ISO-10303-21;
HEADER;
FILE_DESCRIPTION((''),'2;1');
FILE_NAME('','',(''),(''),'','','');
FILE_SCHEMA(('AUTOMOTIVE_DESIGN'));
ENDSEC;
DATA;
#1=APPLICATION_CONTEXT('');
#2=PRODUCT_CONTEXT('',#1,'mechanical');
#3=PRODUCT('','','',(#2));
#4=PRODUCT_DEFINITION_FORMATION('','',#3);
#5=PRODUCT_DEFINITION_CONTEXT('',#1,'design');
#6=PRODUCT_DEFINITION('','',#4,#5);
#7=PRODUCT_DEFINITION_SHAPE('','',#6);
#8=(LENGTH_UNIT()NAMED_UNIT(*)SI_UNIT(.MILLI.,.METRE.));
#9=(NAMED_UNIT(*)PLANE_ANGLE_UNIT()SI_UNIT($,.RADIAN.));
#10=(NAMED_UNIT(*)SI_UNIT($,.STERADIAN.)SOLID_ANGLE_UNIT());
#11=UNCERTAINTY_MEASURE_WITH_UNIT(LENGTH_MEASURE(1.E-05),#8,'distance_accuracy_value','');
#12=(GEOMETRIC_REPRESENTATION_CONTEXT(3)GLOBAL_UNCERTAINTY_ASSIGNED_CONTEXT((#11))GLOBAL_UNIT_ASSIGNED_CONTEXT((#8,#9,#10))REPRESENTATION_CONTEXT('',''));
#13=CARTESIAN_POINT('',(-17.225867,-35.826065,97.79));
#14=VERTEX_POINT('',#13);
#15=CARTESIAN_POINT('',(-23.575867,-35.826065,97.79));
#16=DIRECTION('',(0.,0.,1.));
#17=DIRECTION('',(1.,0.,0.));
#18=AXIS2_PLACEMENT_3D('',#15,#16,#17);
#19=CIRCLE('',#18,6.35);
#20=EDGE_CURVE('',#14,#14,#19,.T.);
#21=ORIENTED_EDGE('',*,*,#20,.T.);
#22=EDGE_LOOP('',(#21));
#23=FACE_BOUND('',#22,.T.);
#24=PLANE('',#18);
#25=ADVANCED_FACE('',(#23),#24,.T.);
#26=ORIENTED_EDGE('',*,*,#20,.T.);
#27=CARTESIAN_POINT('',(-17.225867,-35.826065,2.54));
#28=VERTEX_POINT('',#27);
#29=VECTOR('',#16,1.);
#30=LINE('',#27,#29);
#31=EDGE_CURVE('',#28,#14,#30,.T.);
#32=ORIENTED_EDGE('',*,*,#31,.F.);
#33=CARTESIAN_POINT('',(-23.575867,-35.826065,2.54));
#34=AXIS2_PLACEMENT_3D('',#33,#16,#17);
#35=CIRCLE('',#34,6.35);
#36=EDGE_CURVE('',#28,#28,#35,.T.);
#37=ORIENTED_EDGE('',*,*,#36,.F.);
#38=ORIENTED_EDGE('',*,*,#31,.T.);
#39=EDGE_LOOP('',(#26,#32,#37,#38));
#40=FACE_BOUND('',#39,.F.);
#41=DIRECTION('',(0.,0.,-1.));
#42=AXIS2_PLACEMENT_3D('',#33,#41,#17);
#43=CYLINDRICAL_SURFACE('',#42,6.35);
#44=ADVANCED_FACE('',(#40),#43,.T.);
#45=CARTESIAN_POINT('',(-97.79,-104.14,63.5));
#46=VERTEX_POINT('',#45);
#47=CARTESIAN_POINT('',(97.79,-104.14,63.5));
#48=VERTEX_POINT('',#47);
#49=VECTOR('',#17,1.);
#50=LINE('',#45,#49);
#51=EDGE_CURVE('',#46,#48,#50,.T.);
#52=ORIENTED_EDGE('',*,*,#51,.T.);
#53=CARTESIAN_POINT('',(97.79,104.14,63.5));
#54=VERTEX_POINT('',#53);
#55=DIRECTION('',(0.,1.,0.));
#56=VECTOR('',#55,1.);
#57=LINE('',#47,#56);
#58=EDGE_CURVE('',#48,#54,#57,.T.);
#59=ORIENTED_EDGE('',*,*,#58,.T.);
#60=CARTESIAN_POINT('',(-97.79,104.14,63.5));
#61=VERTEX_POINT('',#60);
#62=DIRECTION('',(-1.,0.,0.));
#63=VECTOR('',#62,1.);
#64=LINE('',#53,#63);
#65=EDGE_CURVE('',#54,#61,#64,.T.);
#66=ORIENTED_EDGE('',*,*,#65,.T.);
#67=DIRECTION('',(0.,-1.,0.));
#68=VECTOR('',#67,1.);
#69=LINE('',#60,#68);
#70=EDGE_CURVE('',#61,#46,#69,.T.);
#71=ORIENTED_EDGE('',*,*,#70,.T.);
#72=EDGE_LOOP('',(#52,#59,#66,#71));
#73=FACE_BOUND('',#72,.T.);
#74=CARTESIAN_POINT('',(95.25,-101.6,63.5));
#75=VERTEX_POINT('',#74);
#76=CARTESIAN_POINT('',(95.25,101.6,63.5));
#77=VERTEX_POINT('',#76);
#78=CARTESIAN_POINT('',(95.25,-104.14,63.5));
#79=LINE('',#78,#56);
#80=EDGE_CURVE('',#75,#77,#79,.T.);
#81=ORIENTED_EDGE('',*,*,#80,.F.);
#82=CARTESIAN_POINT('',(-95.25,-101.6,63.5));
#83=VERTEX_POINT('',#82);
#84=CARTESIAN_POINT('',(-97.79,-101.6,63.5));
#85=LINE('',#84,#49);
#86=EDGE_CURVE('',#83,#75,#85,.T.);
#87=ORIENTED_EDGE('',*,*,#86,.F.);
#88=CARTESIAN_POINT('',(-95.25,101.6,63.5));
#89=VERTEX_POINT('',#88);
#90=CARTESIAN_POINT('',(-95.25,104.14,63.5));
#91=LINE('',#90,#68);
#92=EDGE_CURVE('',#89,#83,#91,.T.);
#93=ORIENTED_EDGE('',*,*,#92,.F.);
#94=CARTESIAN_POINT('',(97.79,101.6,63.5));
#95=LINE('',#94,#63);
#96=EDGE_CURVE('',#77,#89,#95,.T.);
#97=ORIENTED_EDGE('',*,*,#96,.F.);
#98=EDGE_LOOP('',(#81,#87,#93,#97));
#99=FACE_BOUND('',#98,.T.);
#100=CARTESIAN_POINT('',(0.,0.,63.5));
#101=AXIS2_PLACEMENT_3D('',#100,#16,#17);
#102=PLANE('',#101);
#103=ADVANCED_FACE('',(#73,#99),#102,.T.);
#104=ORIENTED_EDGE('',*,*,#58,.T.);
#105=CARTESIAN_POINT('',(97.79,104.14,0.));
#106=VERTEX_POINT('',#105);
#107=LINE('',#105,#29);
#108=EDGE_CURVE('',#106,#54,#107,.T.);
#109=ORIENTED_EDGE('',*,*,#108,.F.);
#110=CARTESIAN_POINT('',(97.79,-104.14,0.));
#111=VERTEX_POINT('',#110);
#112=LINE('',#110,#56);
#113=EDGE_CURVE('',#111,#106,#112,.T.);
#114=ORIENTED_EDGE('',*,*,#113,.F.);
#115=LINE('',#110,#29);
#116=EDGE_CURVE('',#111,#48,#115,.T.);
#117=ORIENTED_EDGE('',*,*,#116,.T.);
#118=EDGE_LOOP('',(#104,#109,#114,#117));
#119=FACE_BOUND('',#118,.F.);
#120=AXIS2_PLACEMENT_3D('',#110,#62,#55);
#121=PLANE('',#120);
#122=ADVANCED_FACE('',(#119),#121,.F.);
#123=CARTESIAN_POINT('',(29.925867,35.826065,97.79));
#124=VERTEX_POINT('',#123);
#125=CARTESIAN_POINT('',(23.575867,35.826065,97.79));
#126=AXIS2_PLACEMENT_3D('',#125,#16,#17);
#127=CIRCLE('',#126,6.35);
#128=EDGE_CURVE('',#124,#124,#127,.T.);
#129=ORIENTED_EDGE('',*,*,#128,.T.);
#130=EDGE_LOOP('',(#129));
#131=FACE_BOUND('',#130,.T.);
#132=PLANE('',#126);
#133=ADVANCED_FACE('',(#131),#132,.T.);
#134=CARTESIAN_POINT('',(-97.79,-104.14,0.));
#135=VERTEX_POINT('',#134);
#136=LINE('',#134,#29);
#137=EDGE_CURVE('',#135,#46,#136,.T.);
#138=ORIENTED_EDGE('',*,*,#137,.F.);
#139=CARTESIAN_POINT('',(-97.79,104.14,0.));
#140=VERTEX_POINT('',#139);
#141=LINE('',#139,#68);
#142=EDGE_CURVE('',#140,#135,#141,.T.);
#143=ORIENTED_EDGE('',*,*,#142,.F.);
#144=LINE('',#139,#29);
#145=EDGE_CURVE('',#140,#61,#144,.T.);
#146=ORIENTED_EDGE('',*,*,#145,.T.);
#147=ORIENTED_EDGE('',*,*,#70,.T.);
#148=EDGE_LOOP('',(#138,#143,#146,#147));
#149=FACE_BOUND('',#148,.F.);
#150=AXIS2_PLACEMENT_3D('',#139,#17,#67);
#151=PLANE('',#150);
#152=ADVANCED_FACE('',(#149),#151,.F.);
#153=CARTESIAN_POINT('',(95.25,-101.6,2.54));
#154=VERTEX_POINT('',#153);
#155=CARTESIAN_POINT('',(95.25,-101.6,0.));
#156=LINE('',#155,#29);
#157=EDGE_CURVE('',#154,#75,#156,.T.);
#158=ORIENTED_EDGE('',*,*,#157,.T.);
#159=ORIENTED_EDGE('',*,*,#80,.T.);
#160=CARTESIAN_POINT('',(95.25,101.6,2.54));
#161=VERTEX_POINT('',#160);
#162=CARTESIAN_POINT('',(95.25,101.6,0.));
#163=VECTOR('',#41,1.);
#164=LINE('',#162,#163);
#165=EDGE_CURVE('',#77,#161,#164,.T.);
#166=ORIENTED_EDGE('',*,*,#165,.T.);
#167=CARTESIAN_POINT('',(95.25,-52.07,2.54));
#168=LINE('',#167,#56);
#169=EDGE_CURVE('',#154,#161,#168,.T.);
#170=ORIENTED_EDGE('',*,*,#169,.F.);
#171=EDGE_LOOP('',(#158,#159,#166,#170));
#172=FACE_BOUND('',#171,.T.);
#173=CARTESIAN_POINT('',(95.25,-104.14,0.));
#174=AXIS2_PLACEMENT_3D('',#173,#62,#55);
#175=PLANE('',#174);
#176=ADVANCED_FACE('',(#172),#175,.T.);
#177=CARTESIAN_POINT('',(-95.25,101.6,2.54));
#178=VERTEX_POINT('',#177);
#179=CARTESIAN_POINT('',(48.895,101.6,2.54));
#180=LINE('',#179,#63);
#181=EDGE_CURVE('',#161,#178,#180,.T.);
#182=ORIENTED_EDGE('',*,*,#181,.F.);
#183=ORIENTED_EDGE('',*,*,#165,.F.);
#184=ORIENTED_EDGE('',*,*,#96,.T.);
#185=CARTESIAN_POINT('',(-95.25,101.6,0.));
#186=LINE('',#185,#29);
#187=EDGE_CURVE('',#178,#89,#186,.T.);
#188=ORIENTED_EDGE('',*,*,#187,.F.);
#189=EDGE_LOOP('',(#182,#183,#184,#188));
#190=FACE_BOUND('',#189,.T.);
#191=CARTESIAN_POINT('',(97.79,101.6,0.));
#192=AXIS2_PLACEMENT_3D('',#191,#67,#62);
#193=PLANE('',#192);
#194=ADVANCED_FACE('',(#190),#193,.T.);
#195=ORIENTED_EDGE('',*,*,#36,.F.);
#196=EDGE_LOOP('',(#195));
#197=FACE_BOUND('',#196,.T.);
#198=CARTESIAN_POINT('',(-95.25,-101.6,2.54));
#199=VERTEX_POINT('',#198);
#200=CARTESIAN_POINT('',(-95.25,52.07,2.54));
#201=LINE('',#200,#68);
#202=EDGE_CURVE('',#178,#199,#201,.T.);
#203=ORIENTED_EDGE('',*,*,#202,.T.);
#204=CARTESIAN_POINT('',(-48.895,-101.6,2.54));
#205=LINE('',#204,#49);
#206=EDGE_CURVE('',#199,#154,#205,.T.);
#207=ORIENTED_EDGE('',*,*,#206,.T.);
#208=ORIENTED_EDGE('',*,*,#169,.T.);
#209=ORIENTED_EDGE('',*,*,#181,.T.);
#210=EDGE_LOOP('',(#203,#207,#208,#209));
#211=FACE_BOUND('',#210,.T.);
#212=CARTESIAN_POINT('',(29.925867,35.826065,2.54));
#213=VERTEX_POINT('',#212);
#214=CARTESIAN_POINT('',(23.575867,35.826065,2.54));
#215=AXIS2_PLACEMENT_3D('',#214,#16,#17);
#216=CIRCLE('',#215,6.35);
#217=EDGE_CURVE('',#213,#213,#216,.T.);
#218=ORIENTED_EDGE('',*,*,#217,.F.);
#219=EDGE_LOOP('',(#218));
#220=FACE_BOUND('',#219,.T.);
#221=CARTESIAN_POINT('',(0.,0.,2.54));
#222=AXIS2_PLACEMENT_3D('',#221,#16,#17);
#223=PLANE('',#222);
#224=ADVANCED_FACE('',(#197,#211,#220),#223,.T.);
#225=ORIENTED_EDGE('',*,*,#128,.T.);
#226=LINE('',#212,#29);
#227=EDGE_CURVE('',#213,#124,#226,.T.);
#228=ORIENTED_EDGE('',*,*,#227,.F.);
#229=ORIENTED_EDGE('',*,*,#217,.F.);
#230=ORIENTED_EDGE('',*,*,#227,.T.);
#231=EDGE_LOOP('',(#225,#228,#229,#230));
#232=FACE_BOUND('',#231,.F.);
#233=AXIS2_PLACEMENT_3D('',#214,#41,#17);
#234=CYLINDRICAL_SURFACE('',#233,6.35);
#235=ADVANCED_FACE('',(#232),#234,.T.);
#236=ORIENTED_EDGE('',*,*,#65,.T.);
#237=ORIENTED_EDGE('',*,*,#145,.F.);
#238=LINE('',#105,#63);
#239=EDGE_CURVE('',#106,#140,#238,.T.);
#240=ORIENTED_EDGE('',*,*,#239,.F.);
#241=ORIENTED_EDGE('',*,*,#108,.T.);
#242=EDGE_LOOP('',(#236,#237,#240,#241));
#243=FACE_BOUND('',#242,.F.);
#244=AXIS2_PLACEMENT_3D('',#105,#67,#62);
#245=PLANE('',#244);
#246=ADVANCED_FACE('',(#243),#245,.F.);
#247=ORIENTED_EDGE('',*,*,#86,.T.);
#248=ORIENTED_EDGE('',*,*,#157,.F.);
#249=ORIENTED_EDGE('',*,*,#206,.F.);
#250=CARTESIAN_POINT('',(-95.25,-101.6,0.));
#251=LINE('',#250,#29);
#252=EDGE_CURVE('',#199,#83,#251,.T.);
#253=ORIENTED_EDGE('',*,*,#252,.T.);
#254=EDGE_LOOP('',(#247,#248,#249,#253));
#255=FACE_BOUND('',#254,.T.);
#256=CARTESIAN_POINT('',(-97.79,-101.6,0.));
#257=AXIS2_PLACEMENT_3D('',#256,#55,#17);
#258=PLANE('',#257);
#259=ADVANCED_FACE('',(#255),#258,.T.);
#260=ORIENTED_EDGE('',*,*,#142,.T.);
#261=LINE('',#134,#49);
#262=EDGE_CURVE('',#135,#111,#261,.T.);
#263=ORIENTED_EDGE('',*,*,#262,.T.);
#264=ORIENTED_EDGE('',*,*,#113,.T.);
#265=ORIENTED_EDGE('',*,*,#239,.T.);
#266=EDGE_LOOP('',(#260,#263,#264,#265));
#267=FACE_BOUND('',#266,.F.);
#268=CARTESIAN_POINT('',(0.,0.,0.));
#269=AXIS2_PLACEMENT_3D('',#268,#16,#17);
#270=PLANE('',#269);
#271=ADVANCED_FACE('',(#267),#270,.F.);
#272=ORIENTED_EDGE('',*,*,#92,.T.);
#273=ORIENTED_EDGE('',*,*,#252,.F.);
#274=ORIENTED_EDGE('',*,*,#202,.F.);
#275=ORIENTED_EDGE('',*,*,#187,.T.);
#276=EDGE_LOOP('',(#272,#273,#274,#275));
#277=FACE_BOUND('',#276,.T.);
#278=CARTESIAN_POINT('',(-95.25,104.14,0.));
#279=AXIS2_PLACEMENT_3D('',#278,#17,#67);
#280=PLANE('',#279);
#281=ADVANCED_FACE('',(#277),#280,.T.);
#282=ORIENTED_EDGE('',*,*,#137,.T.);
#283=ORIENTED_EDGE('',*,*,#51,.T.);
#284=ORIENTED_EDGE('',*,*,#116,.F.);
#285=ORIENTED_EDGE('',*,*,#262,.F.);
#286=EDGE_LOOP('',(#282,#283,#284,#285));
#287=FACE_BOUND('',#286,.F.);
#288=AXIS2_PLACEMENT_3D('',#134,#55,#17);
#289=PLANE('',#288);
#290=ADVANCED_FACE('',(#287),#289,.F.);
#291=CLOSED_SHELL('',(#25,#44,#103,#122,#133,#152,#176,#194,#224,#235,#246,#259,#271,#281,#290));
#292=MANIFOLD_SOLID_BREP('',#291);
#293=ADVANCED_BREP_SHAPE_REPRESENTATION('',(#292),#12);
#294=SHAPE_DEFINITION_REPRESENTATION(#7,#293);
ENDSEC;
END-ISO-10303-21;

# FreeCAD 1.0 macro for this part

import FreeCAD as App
import Part
import Sketcher
Q = App.Units.Quantity


def faces_at(feature, points):
    """Names of the faces that lie closest to the given points."""
    faces = feature.Shape.Faces
    near = lambda p: min(range(len(faces)), key=lambda i: faces[i].distToShape(Part.Vertex(*p))[0])
    return sorted({f"Face{near(p) + 1}" for p in points})

doc = App.newDocument("Part")
body = doc.addObject("PartDesign::Body", "Body")

sketch1 = doc.addObject("Sketcher::SketchObject", "Sketch")
body.addObject(sketch1)
sketch1.AttachmentSupport = (doc.XY_Plane, [""])
sketch1.MapMode = "FlatFace"
sketch1.addGeometry([
    Part.LineSegment(App.Vector(97.79, 104.14, 0), App.Vector(-97.79, 104.14, 0)),
    Part.LineSegment(App.Vector(-97.79, 104.14, 0), App.Vector(-97.79, -104.14, 0)),
    Part.LineSegment(App.Vector(-97.79, -104.14, 0), App.Vector(97.79, -104.14, 0)),
    Part.LineSegment(App.Vector(97.79, -104.14, 0), App.Vector(97.79, 104.14, 0)),
], False)
sketch1.addConstraint([
    Sketcher.Constraint("Coincident", 0, 2, 1, 1),
    Sketcher.Constraint("Coincident", 1, 2, 2, 1),
    Sketcher.Constraint("Coincident", 2, 2, 3, 1),
    Sketcher.Constraint("Coincident", 3, 2, 0, 1),
    Sketcher.Constraint("Horizontal", 0),
    Sketcher.Constraint("Vertical", 1),
    Sketcher.Constraint("Horizontal", 2),
    Sketcher.Constraint("Vertical", 3),
    Sketcher.Constraint("Symmetric", 0, 2, 2, 2, -1, 1),
    Sketcher.Constraint("DistanceX", 0, 2, 0, 1, Q("7.7 in")),
    Sketcher.Constraint("DistanceY", 1, 2, 1, 1, Q("8.2 in")),
])
pad1 = doc.addObject("PartDesign::Pad", "Pad")
body.addObject(pad1)
pad1.Profile = sketch1
pad1.Length = Q("2.5 in")
doc.recompute()

thickness = doc.addObject("PartDesign::Thickness", "Thickness")
body.addObject(thickness)
thickness.Base = (pad1, faces_at(pad1, [(0, 0, 63.5)]))
thickness.Value = Q("0.1 in")
thickness.Reversed = True
thickness.Join = "Arc"

sketch2 = doc.addObject("Sketcher::SketchObject", "Sketch001")
body.addObject(sketch2)
sketch2.AttachmentSupport = (doc.XY_Plane, [""])
sketch2.MapMode = "FlatFace"
sketch2.AttachmentOffset = App.Placement(App.Vector(0, 0, 0.1 * 25.4), App.Rotation())
sketch2.addGeometry([
    Part.Circle(App.Vector(23.575867, 35.826065, 0), App.Vector(0, 0, 1), 6.35),
    Part.Circle(App.Vector(-23.575867, -35.826065, 0), App.Vector(0, 0, 1), 6.35),
], False)
sketch2.addConstraint([
    Sketcher.Constraint("Equal", 0, 1),
    Sketcher.Constraint("Symmetric", 0, 3, 1, 3, -1, 1),
    Sketcher.Constraint("Diameter", 0, Q("0.5 in")),
    Sketcher.Constraint("DistanceY", 1, 3, 0, 3, 71.65213),
    Sketcher.Constraint("DistanceX", -1, 1, 0, 3, 23.575867),
])
pad2 = doc.addObject("PartDesign::Pad", "Pad001")
body.addObject(pad2)
pad2.Profile = sketch2
pad2.Length = Q("3.75 in")

doc.recompute()
